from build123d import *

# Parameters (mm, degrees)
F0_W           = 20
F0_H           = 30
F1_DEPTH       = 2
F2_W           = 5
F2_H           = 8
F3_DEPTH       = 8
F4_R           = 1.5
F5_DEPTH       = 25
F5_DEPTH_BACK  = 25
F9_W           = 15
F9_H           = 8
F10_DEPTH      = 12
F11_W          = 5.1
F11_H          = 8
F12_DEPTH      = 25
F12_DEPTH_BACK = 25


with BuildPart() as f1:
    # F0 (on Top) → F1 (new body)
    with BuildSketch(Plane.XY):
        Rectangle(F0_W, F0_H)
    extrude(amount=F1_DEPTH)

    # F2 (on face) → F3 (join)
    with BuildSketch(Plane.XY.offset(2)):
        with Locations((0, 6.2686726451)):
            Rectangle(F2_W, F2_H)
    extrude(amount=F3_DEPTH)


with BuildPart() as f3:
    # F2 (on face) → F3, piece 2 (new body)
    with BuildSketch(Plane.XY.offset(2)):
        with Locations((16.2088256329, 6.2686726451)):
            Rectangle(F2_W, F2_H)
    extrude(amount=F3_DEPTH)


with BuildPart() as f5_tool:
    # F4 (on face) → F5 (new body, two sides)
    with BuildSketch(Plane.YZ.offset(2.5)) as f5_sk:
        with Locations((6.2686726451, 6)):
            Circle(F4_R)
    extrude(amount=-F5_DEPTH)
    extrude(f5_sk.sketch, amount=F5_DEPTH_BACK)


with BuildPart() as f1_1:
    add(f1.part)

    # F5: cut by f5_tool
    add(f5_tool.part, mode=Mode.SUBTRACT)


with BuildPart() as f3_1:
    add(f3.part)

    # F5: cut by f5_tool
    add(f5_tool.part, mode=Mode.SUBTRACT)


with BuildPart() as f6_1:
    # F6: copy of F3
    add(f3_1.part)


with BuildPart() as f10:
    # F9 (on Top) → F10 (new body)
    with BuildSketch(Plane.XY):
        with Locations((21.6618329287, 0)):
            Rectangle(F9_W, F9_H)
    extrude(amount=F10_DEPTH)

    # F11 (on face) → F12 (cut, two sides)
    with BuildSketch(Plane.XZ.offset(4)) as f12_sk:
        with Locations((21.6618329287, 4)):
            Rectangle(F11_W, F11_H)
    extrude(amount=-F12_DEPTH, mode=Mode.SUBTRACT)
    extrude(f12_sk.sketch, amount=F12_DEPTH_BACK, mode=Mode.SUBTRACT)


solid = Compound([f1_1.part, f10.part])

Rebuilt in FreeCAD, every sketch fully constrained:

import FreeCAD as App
import Part
import Sketcher
from FreeCAD import Vector
Q = App.Units.Quantity

doc = App.newDocument("Part")
params = doc.addObject("Spreadsheet::Sheet", "Params")
for row, (alias, value) in enumerate([
    ("sketch1_width", "20 mm"),
    ("sketch1_height", "30 mm"),
    ("pad1_length", "2 mm"),
    ("sketch2_width", "5 mm"),
    ("sketch2_height", "8 mm"),
    ("pad2_length", "8 mm"),
    ("sketch3_width", "5 mm"),
    ("sketch3_height", "8 mm"),
    ("pad3_length", "8 mm"),
    ("sketch4_diameter", "3 mm"),
    ("pad4_length", "25 mm"),
    ("pad4_length2", "25 mm"),
    ("sketch5_width", "15 mm"),
    ("sketch5_height", "8 mm"),
    ("pad5_length", "12 mm"),
    ("sketch6_height", "8 mm"),
    ("sketch6_width", "5.1 mm"),
], start=1):
    params.set(f"A{row}", alias)
    params.set(f"B{row}", "=" + value)
    params.setAlias(f"B{row}", alias)

body = doc.addObject("PartDesign::Body", "Body")

# Sketch on XY plane
sketch1 = body.newObject("Sketcher::SketchObject", "Sketch")
sketch1.AttachmentSupport = (doc.getObject("XY_Plane"), [""])
sketch1.MapMode = "FlatFace"
sketch1.addGeometry([
    Part.LineSegment(Vector(-10, 15, 0), Vector(-10, -15, 0)),
    Part.LineSegment(Vector(-10, -15, 0), Vector(10, -15, 0)),
    Part.LineSegment(Vector(10, -15, 0), Vector(10, 15, 0)),
    Part.LineSegment(Vector(10, 15, 0), Vector(-10, 15, 0)),
], False)
sketch1.addConstraint([
    Sketcher.Constraint("Coincident", 0, 2, 1, 1),
    Sketcher.Constraint("Coincident", 1, 2, 2, 1),
    Sketcher.Constraint("Coincident", 2, 2, 3, 1),
    Sketcher.Constraint("Coincident", 3, 2, 0, 1),
    Sketcher.Constraint("Vertical", 0),
    Sketcher.Constraint("Horizontal", 1),
    Sketcher.Constraint("Vertical", 2),
    Sketcher.Constraint("Horizontal", 3),
    Sketcher.Constraint("Symmetric", 0, 2, 2, 2, -1, 1),
    Sketcher.Constraint("DistanceX", 1, 1, 1, 2, Q("20 mm")),
    Sketcher.Constraint("DistanceY", 0, 2, 0, 1, Q("30 mm")),
])
sketch1.setExpression("Constraints[9]", "Params.sketch1_width")
sketch1.setExpression("Constraints[10]", "Params.sketch1_height")
pad1 = body.newObject("PartDesign::Pad", "Pad")
pad1.Profile = sketch1
pad1.setExpression("Length", "Params.pad1_length")

# Sketch on XY plane
sketch2 = body.newObject("Sketcher::SketchObject", "Sketch001")
sketch2.AttachmentSupport = (doc.getObject("XY_Plane"), [""])
sketch2.MapMode = "FlatFace"
sketch2.AttachmentOffset = App.Placement(Vector(0, 0, 2), App.Rotation())
sketch2.addGeometry([
    Part.LineSegment(Vector(-2, 10, 0), Vector(-2, 2, 0)),
    Part.LineSegment(Vector(-2, 2, 0), Vector(2, 2, 0)),
    Part.LineSegment(Vector(2, 2, 0), Vector(2, 10, 0)),
    Part.LineSegment(Vector(2, 10, 0), Vector(-2, 10, 0)),
], False)
sketch2.addConstraint([
    Sketcher.Constraint("Coincident", 0, 2, 1, 1),
    Sketcher.Constraint("Coincident", 1, 2, 2, 1),
    Sketcher.Constraint("Coincident", 2, 2, 3, 1),
    Sketcher.Constraint("Coincident", 3, 2, 0, 1),
    Sketcher.Constraint("Vertical", 0),
    Sketcher.Constraint("Horizontal", 1),
    Sketcher.Constraint("Vertical", 2),
    Sketcher.Constraint("Horizontal", 3),
    Sketcher.Constraint("DistanceX", 1, 1, 1, 2, Q("5 mm")),
    Sketcher.Constraint("DistanceY", 0, 2, 0, 1, Q("8 mm")),
    Sketcher.Constraint("DistanceX", 0, 2, -1, 1, Q("2.5 mm")),
    Sketcher.Constraint("DistanceY", -1, 1, 0, 2, Q("2.268673 mm")),
])
sketch2.setExpression("Constraints[8]", "Params.sketch2_width")
sketch2.setExpression("Constraints[9]", "Params.sketch2_height")
pad2 = body.newObject("PartDesign::Pad", "Pad001")
pad2.Profile = sketch2
pad2.setExpression("Length", "Params.pad2_length")
body2 = doc.addObject("PartDesign::Body", "Body001")

# Sketch on XY plane
sketch3 = body2.newObject("Sketcher::SketchObject", "Sketch002")
sketch3.AttachmentSupport = (doc.getObject("XY_Plane001"), [""])
sketch3.MapMode = "FlatFace"
sketch3.AttachmentOffset = App.Placement(Vector(0, 0, 2), App.Rotation())
sketch3.addGeometry([
    Part.LineSegment(Vector(14, 10, 0), Vector(14, 2, 0)),
    Part.LineSegment(Vector(14, 2, 0), Vector(19, 2, 0)),
    Part.LineSegment(Vector(19, 2, 0), Vector(19, 10, 0)),
    Part.LineSegment(Vector(19, 10, 0), Vector(14, 10, 0)),
], False)
sketch3.addConstraint([
    Sketcher.Constraint("Coincident", 0, 2, 1, 1),
    Sketcher.Constraint("Coincident", 1, 2, 2, 1),
    Sketcher.Constraint("Coincident", 2, 2, 3, 1),
    Sketcher.Constraint("Coincident", 3, 2, 0, 1),
    Sketcher.Constraint("Vertical", 0),
    Sketcher.Constraint("Horizontal", 1),
    Sketcher.Constraint("Vertical", 2),
    Sketcher.Constraint("Horizontal", 3),
    Sketcher.Constraint("DistanceX", 1, 1, 1, 2, Q("5 mm")),
    Sketcher.Constraint("DistanceY", 0, 2, 0, 1, Q("8 mm")),
    Sketcher.Constraint("DistanceX", -1, 1, 0, 2, Q("13.708826 mm")),
    Sketcher.Constraint("DistanceY", -1, 1, 0, 2, Q("2.268673 mm")),
])
sketch3.setExpression("Constraints[8]", "Params.sketch3_width")
sketch3.setExpression("Constraints[9]", "Params.sketch3_height")
pad3 = body2.newObject("PartDesign::Pad", "Pad002")
pad3.Profile = sketch3
pad3.setExpression("Length", "Params.pad3_length")
body3 = doc.addObject("PartDesign::Body", "Body002")

# Sketch on YZ plane
sketch4 = body3.newObject("Sketcher::SketchObject", "Sketch003")
sketch4.AttachmentSupport = (doc.getObject("YZ_Plane002"), [""])
sketch4.MapMode = "FlatFace"
sketch4.AttachmentOffset = App.Placement(Vector(0, 0, 2.5), App.Rotation())
sketch4.addGeometry(Part.Circle(Vector(6.3, 6, 0), Vector(0, 0, 1), 1.5), False)
sketch4.addConstraint([
    Sketcher.Constraint("Diameter", 0, Q("3 mm")),
    Sketcher.Constraint("DistanceY", -1, 1, 0, 3, Q("6 mm")),
    Sketcher.Constraint("DistanceX", -1, 1, 0, 3, Q("6.268673 mm")),
])
sketch4.setExpression("Constraints[0]", "Params.sketch4_diameter")
pad4 = body3.newObject("PartDesign::Pad", "Pad003")
pad4.Profile = sketch4
pad4.Type = "TwoLengths"
pad4.setExpression("Length", "Params.pad4_length")
pad4.setExpression("Length2", "Params.pad4_length2")
pad4.Reversed = True
doc.recompute()

body4 = doc.addObject("PartDesign::Body", "Body003")
body4.BaseFeature = body3
boolean = body.newObject("PartDesign::Boolean", "Boolean")
boolean.Type = "Cut"
boolean.addObjects([body4])
doc.recompute()

boolean2 = body2.newObject("PartDesign::Boolean", "Boolean001")
boolean2.Type = "Cut"
boolean2.addObjects([body3])
body5 = doc.addObject("PartDesign::Body", "Body004")

# Sketch on XY plane
sketch5 = body5.newObject("Sketcher::SketchObject", "Sketch004")
sketch5.AttachmentSupport = (doc.getObject("XY_Plane004"), [""])
sketch5.MapMode = "FlatFace"
sketch5.addGeometry([
    Part.LineSegment(Vector(14, 4, 0), Vector(14, -4, 0)),
    Part.LineSegment(Vector(14, -4, 0), Vector(29, -4, 0)),
    Part.LineSegment(Vector(29, -4, 0), Vector(29, 4, 0)),
    Part.LineSegment(Vector(29, 4, 0), Vector(14, 4, 0)),
], False)
sketch5.addConstraint([
    Sketcher.Constraint("Coincident", 0, 2, 1, 1),
    Sketcher.Constraint("Coincident", 1, 2, 2, 1),
    Sketcher.Constraint("Coincident", 2, 2, 3, 1),
    Sketcher.Constraint("Coincident", 3, 2, 0, 1),
    Sketcher.Constraint("Vertical", 0),
    Sketcher.Constraint("Horizontal", 1),
    Sketcher.Constraint("Vertical", 2),
    Sketcher.Constraint("Horizontal", 3),
    Sketcher.Constraint("DistanceX", 1, 1, 1, 2, Q("15 mm")),
    Sketcher.Constraint("DistanceY", 0, 2, 0, 1, Q("8 mm")),
    Sketcher.Constraint("DistanceY", 0, 2, -1, 1, Q("4 mm")),
    Sketcher.Constraint("DistanceX", -1, 1, 0, 2, Q("14.161833 mm")),
])
sketch5.setExpression("Constraints[8]", "Params.sketch5_width")
sketch5.setExpression("Constraints[9]", "Params.sketch5_height")
pad5 = body5.newObject("PartDesign::Pad", "Pad004")
pad5.Profile = sketch5
pad5.setExpression("Length", "Params.pad5_length")

# Sketch on XZ plane
sketch6 = body5.newObject("Sketcher::SketchObject", "Sketch005")
sketch6.AttachmentSupport = (doc.getObject("XZ_Plane004"), [""])
sketch6.MapMode = "FlatFace"
sketch6.AttachmentOffset = App.Placement(Vector(0, 0, 4), App.Rotation())
sketch6.addGeometry([
    Part.LineSegment(Vector(19, 8, 0), Vector(19, 0, 0)),
    Part.LineSegment(Vector(19, 0, 0), Vector(24, 0, 0)),
    Part.LineSegment(Vector(24, 0, 0), Vector(24, 8, 0)),
    Part.LineSegment(Vector(24, 8, 0), Vector(19, 8, 0)),
], False)
sketch6.addConstraint([
    Sketcher.Constraint("Coincident", 0, 2, 1, 1),
    Sketcher.Constraint("Coincident", 1, 2, 2, 1),
    Sketcher.Constraint("Coincident", 2, 2, 3, 1),
    Sketcher.Constraint("Coincident", 3, 2, 0, 1),
    Sketcher.Constraint("Vertical", 0),
    Sketcher.Constraint("Horizontal", 1),
    Sketcher.Constraint("Vertical", 2),
    Sketcher.Constraint("Horizontal", 3),
    Sketcher.Constraint("PointOnObject", 0, 2, -1),
    Sketcher.Constraint("DistanceY", 0, 2, 0, 1, Q("8 mm")),
    Sketcher.Constraint("DistanceX", 1, 1, 1, 2, Q("5.1 mm")),
    Sketcher.Constraint("DistanceX", -1, 1, 0, 2, Q("19.111833 mm")),
])
sketch6.setExpression("Constraints[9]", "Params.sketch6_height")
sketch6.setExpression("Constraints[10]", "Params.sketch6_width")
pocket1 = body5.newObject("PartDesign::Pocket", "Pocket")
pocket1.Profile = sketch6
pocket1.Type = "ThroughAll"
pocket1.Midplane = True
body2.Visibility = False

doc.recompute()
